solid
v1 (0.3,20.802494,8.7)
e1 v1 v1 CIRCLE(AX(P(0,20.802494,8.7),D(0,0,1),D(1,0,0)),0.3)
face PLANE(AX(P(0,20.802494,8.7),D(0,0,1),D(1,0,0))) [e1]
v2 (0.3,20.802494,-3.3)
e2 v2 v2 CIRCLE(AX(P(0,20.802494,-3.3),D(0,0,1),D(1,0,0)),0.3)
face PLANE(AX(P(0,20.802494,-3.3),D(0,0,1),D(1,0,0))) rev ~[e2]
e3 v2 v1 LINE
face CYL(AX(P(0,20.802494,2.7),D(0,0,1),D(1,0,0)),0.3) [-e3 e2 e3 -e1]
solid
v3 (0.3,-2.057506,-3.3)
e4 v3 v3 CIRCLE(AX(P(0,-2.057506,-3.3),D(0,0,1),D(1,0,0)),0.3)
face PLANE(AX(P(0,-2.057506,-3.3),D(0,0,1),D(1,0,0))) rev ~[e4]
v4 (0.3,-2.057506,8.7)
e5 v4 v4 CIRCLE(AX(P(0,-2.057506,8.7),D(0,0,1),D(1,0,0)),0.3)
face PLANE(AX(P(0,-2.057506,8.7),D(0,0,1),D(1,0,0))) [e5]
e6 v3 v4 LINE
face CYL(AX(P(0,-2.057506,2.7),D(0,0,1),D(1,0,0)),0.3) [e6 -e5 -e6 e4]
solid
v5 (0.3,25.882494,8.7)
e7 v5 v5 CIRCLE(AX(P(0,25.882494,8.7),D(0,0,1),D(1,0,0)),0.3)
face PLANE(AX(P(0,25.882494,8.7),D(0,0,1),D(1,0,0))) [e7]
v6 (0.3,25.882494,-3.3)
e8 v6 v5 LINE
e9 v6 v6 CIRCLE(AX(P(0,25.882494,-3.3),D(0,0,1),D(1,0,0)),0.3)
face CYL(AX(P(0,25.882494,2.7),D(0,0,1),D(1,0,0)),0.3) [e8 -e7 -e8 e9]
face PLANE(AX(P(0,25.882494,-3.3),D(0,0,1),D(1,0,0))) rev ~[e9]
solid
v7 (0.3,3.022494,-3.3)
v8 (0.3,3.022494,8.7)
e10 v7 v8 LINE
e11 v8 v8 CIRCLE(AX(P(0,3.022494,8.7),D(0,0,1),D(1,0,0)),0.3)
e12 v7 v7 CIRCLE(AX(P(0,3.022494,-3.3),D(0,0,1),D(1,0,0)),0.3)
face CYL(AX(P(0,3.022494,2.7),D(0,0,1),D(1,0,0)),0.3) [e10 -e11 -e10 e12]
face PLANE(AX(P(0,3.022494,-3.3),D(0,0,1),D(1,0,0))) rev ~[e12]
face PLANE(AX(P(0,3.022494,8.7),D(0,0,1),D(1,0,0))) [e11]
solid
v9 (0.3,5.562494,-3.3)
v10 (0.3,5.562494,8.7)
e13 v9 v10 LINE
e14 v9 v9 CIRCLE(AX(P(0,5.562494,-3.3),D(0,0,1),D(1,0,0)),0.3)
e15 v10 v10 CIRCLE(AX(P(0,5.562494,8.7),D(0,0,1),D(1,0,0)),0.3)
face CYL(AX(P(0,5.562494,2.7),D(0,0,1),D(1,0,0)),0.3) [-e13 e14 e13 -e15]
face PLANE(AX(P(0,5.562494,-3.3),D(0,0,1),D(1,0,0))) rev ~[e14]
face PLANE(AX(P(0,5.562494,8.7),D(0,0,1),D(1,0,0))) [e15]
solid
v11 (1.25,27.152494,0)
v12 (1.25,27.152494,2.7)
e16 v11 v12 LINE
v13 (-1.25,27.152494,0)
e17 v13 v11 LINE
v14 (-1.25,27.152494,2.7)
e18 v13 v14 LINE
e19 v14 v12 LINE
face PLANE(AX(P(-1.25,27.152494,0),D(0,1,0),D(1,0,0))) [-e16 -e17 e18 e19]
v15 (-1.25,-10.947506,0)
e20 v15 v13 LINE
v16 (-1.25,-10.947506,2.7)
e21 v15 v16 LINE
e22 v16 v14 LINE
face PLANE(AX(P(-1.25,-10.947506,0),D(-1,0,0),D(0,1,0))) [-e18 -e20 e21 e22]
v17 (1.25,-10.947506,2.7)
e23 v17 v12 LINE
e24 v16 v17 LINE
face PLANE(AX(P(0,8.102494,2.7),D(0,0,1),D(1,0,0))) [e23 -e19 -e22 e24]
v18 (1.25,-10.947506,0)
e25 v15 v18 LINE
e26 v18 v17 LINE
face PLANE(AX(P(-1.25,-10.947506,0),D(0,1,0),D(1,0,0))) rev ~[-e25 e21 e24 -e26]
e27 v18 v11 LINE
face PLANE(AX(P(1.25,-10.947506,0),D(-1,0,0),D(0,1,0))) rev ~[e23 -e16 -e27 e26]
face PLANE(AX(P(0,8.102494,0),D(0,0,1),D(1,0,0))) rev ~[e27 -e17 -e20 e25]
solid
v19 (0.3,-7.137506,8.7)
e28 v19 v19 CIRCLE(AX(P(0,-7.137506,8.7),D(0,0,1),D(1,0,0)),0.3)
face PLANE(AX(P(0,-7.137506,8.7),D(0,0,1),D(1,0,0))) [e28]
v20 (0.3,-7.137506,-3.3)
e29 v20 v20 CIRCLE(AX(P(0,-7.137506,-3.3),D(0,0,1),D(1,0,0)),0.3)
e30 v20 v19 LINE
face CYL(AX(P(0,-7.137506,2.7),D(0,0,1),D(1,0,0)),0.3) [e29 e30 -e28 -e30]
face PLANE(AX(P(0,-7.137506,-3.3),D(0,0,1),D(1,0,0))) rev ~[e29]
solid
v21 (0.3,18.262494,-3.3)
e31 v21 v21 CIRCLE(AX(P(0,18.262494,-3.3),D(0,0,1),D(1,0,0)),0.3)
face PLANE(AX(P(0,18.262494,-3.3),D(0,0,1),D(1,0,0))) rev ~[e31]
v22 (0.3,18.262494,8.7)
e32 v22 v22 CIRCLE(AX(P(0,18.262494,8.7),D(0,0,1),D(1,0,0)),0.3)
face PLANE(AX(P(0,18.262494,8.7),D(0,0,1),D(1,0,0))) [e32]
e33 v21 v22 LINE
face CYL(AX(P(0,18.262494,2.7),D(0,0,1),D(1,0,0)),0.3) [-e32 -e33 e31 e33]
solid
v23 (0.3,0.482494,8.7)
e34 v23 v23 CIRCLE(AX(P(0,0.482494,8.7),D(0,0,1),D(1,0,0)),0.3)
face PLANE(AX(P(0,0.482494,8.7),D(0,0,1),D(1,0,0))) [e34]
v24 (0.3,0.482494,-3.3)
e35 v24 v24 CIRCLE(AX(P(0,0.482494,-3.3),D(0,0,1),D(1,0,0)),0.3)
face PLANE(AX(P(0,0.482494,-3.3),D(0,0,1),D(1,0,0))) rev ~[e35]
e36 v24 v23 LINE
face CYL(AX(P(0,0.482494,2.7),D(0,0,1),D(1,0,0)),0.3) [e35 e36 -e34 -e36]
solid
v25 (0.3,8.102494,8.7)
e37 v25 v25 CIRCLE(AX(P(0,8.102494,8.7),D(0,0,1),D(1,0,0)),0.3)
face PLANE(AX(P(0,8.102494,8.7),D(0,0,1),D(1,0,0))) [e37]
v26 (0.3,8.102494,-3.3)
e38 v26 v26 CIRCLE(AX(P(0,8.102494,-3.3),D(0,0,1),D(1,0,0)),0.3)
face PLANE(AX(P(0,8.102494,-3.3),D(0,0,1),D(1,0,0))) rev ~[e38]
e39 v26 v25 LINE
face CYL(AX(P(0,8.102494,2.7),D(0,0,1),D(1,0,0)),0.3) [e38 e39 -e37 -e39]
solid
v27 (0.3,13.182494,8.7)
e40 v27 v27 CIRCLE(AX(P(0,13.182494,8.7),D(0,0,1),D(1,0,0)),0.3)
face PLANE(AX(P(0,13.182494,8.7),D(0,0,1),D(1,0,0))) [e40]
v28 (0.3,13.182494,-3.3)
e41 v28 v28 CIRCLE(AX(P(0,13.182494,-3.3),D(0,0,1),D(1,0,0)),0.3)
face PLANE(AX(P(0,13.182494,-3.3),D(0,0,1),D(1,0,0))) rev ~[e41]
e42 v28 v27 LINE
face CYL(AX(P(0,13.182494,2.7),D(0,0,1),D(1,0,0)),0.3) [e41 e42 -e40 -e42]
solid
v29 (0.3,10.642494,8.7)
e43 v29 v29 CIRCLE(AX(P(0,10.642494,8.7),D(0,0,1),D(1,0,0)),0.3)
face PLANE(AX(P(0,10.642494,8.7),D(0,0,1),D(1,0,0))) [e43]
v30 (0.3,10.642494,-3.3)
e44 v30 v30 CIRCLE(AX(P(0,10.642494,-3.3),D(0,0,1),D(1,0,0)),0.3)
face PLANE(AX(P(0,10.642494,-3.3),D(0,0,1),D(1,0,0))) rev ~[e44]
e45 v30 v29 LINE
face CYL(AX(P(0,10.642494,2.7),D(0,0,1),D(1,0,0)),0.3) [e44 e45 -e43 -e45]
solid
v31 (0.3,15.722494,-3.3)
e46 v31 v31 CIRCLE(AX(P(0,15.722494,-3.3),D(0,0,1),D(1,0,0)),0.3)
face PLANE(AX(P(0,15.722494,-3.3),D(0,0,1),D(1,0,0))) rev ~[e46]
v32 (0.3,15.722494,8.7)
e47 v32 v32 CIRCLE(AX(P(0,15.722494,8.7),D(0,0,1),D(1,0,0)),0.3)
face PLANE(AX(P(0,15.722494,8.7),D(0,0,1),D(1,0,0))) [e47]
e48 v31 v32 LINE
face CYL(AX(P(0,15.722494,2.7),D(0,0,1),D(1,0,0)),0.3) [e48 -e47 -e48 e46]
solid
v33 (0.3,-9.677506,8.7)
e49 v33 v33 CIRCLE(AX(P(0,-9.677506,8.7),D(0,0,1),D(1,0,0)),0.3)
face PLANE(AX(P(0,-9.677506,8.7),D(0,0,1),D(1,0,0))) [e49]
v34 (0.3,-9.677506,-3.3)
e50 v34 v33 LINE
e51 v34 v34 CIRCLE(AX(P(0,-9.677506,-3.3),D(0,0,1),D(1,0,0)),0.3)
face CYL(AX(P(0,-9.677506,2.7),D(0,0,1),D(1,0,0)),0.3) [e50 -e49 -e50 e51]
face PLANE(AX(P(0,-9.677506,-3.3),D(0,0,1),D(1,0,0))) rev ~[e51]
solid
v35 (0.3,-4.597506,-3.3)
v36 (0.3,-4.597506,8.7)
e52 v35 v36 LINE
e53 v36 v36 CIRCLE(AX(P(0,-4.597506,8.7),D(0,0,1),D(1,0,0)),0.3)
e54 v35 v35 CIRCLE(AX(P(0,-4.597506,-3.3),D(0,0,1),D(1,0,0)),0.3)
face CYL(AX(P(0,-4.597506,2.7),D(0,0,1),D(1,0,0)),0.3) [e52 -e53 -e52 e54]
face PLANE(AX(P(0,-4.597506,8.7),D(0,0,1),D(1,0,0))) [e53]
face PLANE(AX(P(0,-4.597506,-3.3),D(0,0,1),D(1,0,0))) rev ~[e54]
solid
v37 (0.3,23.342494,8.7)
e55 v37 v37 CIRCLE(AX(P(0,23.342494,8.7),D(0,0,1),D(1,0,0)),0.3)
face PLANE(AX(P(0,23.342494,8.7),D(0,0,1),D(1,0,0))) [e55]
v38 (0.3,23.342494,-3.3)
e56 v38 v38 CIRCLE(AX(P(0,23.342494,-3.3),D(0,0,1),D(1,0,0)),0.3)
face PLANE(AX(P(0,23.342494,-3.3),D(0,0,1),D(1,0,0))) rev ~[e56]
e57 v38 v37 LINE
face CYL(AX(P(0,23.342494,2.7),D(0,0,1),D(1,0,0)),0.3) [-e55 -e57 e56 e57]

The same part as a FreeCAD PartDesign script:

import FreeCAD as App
import Part
import Sketcher

doc = App.newDocument("Part")
body = doc.addObject("PartDesign::Body", "Body")

# Sketch on XY plane
sketch1 = body.newObject("Sketcher::SketchObject", "Sketch")
sketch1.AttachmentSupport = (doc.getObject("XY_Plane"), [""])
sketch1.MapMode = "FlatFace"
sketch1.addGeometry([
    Part.LineSegment(App.Vector(-1.2, 27.2, 0), App.Vector(-1.2, -10.9, 0)),
    Part.LineSegment(App.Vector(-1.2, -10.9, 0), App.Vector(1.2, -10.9, 0)),
    Part.LineSegment(App.Vector(1.2, -10.9, 0), App.Vector(1.2, 27.2, 0)),
    Part.LineSegment(App.Vector(1.2, 27.2, 0), App.Vector(-1.2, 27.2, 0)),
], False)
sketch1.addConstraint([
    Sketcher.Constraint("Coincident", 0, 2, 1, 1),
    Sketcher.Constraint("Coincident", 1, 2, 2, 1),
    Sketcher.Constraint("Coincident", 2, 2, 3, 1),
    Sketcher.Constraint("Coincident", 3, 2, 0, 1),
    Sketcher.Constraint("Vertical", 0),
    Sketcher.Constraint("Horizontal", 1),
    Sketcher.Constraint("Vertical", 2),
    Sketcher.Constraint("Horizontal", 3),
    Sketcher.Constraint("DistanceX", 1, 1, 1, 2, 2.5),
    Sketcher.Constraint("DistanceY", 0, 2, 0, 1, 38.1),
    Sketcher.Constraint("DistanceX", 0, 2, -1, 1, 1.25),
    Sketcher.Constraint("DistanceY", 0, 2, -1, 1, 10.947506),
])
pad1 = body.newObject("PartDesign::Pad", "Pad")
pad1.Profile = sketch1
pad1.Length = 2.7
body2 = doc.addObject("PartDesign::Body", "Body001")
body2.AllowCompound = True

# Sketch on XY plane
sketch2 = body2.newObject("Sketcher::SketchObject", "Sketch001")
sketch2.AttachmentSupport = (doc.getObject("XY_Plane001"), [""])
sketch2.MapMode = "FlatFace"
sketch2.AttachmentOffset = App.Placement(App.Vector(0, 0, 2.7), App.Rotation())
sketch2.addGeometry([
    Part.Circle(App.Vector(0, 25.88, 0), App.Vector(0, 0, 1), 0.3),  # 0
    Part.Circle(App.Vector(0, 23.34, 0), App.Vector(0, 0, 1), 0.3),  # 1
    Part.Circle(App.Vector(0, 20.8, 0), App.Vector(0, 0, 1), 0.3),  # 2
    Part.Circle(App.Vector(0, 18.26, 0), App.Vector(0, 0, 1), 0.3),  # 3
    Part.Circle(App.Vector(0, 15.72, 0), App.Vector(0, 0, 1), 0.3),  # 4
    Part.Circle(App.Vector(0, 13.18, 0), App.Vector(0, 0, 1), 0.3),  # 5
    Part.Circle(App.Vector(0, 10.64, 0), App.Vector(0, 0, 1), 0.3),  # 6
    Part.Circle(App.Vector(0, 8.1, 0), App.Vector(0, 0, 1), 0.3),  # 7
    Part.Circle(App.Vector(0, 5.56, 0), App.Vector(0, 0, 1), 0.3),  # 8
    Part.Circle(App.Vector(0, 3.02, 0), App.Vector(0, 0, 1), 0.3),  # 9
    Part.Circle(App.Vector(0, 0.48, 0), App.Vector(0, 0, 1), 0.3),  # 10
    Part.Circle(App.Vector(0, -2.06, 0), App.Vector(0, 0, 1), 0.3),  # 11
    Part.Circle(App.Vector(0, -4.6, 0), App.Vector(0, 0, 1), 0.3),  # 12
    Part.Circle(App.Vector(0, -7.14, 0), App.Vector(0, 0, 1), 0.3),  # 13
    Part.Circle(App.Vector(0, -9.68, 0), App.Vector(0, 0, 1), 0.3),  # 14
], False)
sketch2.addConstraint([
    Sketcher.Constraint("Equal", 0, 1),
    Sketcher.Constraint("Equal", 1, 2),
    Sketcher.Constraint("Equal", 2, 3),
    Sketcher.Constraint("Equal", 3, 4),
    Sketcher.Constraint("Equal", 4, 5),
    Sketcher.Constraint("Equal", 5, 6),
    Sketcher.Constraint("Equal", 6, 7),
    Sketcher.Constraint("Equal", 7, 8),
    Sketcher.Constraint("Equal", 8, 9),
    Sketcher.Constraint("Equal", 9, 10),
    Sketcher.Constraint("Equal", 10, 11),
    Sketcher.Constraint("Equal", 11, 12),
    Sketcher.Constraint("Equal", 12, 13),
    Sketcher.Constraint("Equal", 13, 14),
    Sketcher.Constraint("PointOnObject", 0, 3, -2),
    Sketcher.Constraint("PointOnObject", 1, 3, -2),
    Sketcher.Constraint("PointOnObject", 2, 3, -2),
    Sketcher.Constraint("PointOnObject", 3, 3, -2),
    Sketcher.Constraint("PointOnObject", 4, 3, -2),
    Sketcher.Constraint("PointOnObject", 5, 3, -2),
    Sketcher.Constraint("PointOnObject", 6, 3, -2),
    Sketcher.Constraint("PointOnObject", 7, 3, -2),
    Sketcher.Constraint("PointOnObject", 8, 3, -2),
    Sketcher.Constraint("PointOnObject", 9, 3, -2),
    Sketcher.Constraint("PointOnObject", 10, 3, -2),
    Sketcher.Constraint("PointOnObject", 11, 3, -2),
    Sketcher.Constraint("PointOnObject", 12, 3, -2),
    Sketcher.Constraint("PointOnObject", 13, 3, -2),
    Sketcher.Constraint("PointOnObject", 14, 3, -2),
    Sketcher.Constraint("Diameter", 0, 0.6),
    Sketcher.Constraint("DistanceY", 5, 3, 0, 3, 12.7),
    Sketcher.Constraint("DistanceY", 6, 3, 1, 3, 12.7),
    Sketcher.Constraint("DistanceY", 7, 3, 2, 3, 12.7),
    Sketcher.Constraint("DistanceY", 8, 3, 3, 3, 12.7),
    Sketcher.Constraint("DistanceY", 9, 3, 4, 3, 12.7),
    Sketcher.Constraint("DistanceY", 10, 3, 5, 3, 12.7),
    Sketcher.Constraint("DistanceY", 11, 3, 6, 3, 12.7),
    Sketcher.Constraint("DistanceY", 12, 3, 7, 3, 12.7),
    Sketcher.Constraint("DistanceY", 13, 3, 8, 3, 12.7),
    Sketcher.Constraint("DistanceY", 14, 3, 9, 3, 12.7),
    Sketcher.Constraint("DistanceY", 1, 3, 0, 3, 2.54),
    Sketcher.Constraint("DistanceY", 2, 3, 1, 3, 2.54),
    Sketcher.Constraint("DistanceY", 3, 3, 2, 3, 2.54),
    Sketcher.Constraint("DistanceY", 4, 3, 3, 3, 2.54),
    Sketcher.Constraint("DistanceY", -1, 1, 0, 3, 25.882494),
])
pad2 = body2.newObject("PartDesign::Pad", "Pad001")
pad2.Profile = sketch2
pad2.Type = "TwoLengths"
pad2.Length = 6
pad2.Length2 = 6

doc.recompute()
